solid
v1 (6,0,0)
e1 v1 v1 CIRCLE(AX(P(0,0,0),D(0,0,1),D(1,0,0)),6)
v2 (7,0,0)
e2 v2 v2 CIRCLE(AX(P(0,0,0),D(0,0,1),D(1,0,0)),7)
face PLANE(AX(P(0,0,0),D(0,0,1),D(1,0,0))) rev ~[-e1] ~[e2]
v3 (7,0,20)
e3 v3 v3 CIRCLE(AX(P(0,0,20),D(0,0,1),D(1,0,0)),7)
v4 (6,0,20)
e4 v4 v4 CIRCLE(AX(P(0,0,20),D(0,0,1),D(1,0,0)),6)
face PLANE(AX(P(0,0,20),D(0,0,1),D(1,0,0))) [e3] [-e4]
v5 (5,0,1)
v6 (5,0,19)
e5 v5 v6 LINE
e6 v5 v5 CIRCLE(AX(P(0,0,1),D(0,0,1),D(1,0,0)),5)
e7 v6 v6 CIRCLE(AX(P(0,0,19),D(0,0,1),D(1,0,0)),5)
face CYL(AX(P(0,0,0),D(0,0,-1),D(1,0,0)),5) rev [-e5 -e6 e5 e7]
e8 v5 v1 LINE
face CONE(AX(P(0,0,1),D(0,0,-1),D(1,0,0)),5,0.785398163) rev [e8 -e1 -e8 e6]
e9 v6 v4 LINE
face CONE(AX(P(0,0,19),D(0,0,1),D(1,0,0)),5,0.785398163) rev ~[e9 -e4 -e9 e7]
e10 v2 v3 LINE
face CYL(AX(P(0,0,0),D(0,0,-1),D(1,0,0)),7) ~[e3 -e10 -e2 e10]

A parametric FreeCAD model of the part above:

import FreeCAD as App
import Part
import Sketcher
from FreeCAD import Vector


def edges_at(feature, points):
    """Names of the edges that pass closest to the given points."""
    edges = feature.Shape.Edges
    near = lambda p: min(range(len(edges)), key=lambda i: edges[i].distToShape(Part.Vertex(*p))[0])
    return sorted({f"Edge{near(p) + 1}" for p in points})

doc = App.newDocument("Part")
body = doc.addObject("PartDesign::Body", "Body")

sketch1 = body.newObject("Sketcher::SketchObject", "Sketch")
sketch1.AttachmentSupport = (doc.getObject("XY_Plane"), [""])
sketch1.MapMode = "FlatFace"
sketch1.addGeometry([
    Part.Circle(Vector(0, 0, 0), Vector(0, 0, 1), 7),
    Part.Circle(Vector(0, 0, 0), Vector(0, 0, 1), 5),
], False)
sketch1.addConstraint([
    Sketcher.Constraint("Coincident", 0, 3, -1, 1),
    Sketcher.Constraint("Coincident", 1, 3, -1, 1),
    Sketcher.Constraint("Diameter", 0, 14.0),
    Sketcher.Constraint("Diameter", 1, 10.0),
])
pad1 = body.newObject("PartDesign::Pad", "Pad")
pad1.Profile = sketch1
pad1.Length = 20
doc.recompute()

chamfer = body.newObject("PartDesign::Chamfer", "Chamfer")
chamfer.Base = (pad1, edges_at(pad1, [(-5, 0, 20)]))
chamfer.Size = 1
doc.recompute()

chamfer2 = body.newObject("PartDesign::Chamfer", "Chamfer001")
chamfer2.Base = (chamfer, edges_at(chamfer, [(-5, 0, 0)]))
chamfer2.Size = 1

doc.recompute()
